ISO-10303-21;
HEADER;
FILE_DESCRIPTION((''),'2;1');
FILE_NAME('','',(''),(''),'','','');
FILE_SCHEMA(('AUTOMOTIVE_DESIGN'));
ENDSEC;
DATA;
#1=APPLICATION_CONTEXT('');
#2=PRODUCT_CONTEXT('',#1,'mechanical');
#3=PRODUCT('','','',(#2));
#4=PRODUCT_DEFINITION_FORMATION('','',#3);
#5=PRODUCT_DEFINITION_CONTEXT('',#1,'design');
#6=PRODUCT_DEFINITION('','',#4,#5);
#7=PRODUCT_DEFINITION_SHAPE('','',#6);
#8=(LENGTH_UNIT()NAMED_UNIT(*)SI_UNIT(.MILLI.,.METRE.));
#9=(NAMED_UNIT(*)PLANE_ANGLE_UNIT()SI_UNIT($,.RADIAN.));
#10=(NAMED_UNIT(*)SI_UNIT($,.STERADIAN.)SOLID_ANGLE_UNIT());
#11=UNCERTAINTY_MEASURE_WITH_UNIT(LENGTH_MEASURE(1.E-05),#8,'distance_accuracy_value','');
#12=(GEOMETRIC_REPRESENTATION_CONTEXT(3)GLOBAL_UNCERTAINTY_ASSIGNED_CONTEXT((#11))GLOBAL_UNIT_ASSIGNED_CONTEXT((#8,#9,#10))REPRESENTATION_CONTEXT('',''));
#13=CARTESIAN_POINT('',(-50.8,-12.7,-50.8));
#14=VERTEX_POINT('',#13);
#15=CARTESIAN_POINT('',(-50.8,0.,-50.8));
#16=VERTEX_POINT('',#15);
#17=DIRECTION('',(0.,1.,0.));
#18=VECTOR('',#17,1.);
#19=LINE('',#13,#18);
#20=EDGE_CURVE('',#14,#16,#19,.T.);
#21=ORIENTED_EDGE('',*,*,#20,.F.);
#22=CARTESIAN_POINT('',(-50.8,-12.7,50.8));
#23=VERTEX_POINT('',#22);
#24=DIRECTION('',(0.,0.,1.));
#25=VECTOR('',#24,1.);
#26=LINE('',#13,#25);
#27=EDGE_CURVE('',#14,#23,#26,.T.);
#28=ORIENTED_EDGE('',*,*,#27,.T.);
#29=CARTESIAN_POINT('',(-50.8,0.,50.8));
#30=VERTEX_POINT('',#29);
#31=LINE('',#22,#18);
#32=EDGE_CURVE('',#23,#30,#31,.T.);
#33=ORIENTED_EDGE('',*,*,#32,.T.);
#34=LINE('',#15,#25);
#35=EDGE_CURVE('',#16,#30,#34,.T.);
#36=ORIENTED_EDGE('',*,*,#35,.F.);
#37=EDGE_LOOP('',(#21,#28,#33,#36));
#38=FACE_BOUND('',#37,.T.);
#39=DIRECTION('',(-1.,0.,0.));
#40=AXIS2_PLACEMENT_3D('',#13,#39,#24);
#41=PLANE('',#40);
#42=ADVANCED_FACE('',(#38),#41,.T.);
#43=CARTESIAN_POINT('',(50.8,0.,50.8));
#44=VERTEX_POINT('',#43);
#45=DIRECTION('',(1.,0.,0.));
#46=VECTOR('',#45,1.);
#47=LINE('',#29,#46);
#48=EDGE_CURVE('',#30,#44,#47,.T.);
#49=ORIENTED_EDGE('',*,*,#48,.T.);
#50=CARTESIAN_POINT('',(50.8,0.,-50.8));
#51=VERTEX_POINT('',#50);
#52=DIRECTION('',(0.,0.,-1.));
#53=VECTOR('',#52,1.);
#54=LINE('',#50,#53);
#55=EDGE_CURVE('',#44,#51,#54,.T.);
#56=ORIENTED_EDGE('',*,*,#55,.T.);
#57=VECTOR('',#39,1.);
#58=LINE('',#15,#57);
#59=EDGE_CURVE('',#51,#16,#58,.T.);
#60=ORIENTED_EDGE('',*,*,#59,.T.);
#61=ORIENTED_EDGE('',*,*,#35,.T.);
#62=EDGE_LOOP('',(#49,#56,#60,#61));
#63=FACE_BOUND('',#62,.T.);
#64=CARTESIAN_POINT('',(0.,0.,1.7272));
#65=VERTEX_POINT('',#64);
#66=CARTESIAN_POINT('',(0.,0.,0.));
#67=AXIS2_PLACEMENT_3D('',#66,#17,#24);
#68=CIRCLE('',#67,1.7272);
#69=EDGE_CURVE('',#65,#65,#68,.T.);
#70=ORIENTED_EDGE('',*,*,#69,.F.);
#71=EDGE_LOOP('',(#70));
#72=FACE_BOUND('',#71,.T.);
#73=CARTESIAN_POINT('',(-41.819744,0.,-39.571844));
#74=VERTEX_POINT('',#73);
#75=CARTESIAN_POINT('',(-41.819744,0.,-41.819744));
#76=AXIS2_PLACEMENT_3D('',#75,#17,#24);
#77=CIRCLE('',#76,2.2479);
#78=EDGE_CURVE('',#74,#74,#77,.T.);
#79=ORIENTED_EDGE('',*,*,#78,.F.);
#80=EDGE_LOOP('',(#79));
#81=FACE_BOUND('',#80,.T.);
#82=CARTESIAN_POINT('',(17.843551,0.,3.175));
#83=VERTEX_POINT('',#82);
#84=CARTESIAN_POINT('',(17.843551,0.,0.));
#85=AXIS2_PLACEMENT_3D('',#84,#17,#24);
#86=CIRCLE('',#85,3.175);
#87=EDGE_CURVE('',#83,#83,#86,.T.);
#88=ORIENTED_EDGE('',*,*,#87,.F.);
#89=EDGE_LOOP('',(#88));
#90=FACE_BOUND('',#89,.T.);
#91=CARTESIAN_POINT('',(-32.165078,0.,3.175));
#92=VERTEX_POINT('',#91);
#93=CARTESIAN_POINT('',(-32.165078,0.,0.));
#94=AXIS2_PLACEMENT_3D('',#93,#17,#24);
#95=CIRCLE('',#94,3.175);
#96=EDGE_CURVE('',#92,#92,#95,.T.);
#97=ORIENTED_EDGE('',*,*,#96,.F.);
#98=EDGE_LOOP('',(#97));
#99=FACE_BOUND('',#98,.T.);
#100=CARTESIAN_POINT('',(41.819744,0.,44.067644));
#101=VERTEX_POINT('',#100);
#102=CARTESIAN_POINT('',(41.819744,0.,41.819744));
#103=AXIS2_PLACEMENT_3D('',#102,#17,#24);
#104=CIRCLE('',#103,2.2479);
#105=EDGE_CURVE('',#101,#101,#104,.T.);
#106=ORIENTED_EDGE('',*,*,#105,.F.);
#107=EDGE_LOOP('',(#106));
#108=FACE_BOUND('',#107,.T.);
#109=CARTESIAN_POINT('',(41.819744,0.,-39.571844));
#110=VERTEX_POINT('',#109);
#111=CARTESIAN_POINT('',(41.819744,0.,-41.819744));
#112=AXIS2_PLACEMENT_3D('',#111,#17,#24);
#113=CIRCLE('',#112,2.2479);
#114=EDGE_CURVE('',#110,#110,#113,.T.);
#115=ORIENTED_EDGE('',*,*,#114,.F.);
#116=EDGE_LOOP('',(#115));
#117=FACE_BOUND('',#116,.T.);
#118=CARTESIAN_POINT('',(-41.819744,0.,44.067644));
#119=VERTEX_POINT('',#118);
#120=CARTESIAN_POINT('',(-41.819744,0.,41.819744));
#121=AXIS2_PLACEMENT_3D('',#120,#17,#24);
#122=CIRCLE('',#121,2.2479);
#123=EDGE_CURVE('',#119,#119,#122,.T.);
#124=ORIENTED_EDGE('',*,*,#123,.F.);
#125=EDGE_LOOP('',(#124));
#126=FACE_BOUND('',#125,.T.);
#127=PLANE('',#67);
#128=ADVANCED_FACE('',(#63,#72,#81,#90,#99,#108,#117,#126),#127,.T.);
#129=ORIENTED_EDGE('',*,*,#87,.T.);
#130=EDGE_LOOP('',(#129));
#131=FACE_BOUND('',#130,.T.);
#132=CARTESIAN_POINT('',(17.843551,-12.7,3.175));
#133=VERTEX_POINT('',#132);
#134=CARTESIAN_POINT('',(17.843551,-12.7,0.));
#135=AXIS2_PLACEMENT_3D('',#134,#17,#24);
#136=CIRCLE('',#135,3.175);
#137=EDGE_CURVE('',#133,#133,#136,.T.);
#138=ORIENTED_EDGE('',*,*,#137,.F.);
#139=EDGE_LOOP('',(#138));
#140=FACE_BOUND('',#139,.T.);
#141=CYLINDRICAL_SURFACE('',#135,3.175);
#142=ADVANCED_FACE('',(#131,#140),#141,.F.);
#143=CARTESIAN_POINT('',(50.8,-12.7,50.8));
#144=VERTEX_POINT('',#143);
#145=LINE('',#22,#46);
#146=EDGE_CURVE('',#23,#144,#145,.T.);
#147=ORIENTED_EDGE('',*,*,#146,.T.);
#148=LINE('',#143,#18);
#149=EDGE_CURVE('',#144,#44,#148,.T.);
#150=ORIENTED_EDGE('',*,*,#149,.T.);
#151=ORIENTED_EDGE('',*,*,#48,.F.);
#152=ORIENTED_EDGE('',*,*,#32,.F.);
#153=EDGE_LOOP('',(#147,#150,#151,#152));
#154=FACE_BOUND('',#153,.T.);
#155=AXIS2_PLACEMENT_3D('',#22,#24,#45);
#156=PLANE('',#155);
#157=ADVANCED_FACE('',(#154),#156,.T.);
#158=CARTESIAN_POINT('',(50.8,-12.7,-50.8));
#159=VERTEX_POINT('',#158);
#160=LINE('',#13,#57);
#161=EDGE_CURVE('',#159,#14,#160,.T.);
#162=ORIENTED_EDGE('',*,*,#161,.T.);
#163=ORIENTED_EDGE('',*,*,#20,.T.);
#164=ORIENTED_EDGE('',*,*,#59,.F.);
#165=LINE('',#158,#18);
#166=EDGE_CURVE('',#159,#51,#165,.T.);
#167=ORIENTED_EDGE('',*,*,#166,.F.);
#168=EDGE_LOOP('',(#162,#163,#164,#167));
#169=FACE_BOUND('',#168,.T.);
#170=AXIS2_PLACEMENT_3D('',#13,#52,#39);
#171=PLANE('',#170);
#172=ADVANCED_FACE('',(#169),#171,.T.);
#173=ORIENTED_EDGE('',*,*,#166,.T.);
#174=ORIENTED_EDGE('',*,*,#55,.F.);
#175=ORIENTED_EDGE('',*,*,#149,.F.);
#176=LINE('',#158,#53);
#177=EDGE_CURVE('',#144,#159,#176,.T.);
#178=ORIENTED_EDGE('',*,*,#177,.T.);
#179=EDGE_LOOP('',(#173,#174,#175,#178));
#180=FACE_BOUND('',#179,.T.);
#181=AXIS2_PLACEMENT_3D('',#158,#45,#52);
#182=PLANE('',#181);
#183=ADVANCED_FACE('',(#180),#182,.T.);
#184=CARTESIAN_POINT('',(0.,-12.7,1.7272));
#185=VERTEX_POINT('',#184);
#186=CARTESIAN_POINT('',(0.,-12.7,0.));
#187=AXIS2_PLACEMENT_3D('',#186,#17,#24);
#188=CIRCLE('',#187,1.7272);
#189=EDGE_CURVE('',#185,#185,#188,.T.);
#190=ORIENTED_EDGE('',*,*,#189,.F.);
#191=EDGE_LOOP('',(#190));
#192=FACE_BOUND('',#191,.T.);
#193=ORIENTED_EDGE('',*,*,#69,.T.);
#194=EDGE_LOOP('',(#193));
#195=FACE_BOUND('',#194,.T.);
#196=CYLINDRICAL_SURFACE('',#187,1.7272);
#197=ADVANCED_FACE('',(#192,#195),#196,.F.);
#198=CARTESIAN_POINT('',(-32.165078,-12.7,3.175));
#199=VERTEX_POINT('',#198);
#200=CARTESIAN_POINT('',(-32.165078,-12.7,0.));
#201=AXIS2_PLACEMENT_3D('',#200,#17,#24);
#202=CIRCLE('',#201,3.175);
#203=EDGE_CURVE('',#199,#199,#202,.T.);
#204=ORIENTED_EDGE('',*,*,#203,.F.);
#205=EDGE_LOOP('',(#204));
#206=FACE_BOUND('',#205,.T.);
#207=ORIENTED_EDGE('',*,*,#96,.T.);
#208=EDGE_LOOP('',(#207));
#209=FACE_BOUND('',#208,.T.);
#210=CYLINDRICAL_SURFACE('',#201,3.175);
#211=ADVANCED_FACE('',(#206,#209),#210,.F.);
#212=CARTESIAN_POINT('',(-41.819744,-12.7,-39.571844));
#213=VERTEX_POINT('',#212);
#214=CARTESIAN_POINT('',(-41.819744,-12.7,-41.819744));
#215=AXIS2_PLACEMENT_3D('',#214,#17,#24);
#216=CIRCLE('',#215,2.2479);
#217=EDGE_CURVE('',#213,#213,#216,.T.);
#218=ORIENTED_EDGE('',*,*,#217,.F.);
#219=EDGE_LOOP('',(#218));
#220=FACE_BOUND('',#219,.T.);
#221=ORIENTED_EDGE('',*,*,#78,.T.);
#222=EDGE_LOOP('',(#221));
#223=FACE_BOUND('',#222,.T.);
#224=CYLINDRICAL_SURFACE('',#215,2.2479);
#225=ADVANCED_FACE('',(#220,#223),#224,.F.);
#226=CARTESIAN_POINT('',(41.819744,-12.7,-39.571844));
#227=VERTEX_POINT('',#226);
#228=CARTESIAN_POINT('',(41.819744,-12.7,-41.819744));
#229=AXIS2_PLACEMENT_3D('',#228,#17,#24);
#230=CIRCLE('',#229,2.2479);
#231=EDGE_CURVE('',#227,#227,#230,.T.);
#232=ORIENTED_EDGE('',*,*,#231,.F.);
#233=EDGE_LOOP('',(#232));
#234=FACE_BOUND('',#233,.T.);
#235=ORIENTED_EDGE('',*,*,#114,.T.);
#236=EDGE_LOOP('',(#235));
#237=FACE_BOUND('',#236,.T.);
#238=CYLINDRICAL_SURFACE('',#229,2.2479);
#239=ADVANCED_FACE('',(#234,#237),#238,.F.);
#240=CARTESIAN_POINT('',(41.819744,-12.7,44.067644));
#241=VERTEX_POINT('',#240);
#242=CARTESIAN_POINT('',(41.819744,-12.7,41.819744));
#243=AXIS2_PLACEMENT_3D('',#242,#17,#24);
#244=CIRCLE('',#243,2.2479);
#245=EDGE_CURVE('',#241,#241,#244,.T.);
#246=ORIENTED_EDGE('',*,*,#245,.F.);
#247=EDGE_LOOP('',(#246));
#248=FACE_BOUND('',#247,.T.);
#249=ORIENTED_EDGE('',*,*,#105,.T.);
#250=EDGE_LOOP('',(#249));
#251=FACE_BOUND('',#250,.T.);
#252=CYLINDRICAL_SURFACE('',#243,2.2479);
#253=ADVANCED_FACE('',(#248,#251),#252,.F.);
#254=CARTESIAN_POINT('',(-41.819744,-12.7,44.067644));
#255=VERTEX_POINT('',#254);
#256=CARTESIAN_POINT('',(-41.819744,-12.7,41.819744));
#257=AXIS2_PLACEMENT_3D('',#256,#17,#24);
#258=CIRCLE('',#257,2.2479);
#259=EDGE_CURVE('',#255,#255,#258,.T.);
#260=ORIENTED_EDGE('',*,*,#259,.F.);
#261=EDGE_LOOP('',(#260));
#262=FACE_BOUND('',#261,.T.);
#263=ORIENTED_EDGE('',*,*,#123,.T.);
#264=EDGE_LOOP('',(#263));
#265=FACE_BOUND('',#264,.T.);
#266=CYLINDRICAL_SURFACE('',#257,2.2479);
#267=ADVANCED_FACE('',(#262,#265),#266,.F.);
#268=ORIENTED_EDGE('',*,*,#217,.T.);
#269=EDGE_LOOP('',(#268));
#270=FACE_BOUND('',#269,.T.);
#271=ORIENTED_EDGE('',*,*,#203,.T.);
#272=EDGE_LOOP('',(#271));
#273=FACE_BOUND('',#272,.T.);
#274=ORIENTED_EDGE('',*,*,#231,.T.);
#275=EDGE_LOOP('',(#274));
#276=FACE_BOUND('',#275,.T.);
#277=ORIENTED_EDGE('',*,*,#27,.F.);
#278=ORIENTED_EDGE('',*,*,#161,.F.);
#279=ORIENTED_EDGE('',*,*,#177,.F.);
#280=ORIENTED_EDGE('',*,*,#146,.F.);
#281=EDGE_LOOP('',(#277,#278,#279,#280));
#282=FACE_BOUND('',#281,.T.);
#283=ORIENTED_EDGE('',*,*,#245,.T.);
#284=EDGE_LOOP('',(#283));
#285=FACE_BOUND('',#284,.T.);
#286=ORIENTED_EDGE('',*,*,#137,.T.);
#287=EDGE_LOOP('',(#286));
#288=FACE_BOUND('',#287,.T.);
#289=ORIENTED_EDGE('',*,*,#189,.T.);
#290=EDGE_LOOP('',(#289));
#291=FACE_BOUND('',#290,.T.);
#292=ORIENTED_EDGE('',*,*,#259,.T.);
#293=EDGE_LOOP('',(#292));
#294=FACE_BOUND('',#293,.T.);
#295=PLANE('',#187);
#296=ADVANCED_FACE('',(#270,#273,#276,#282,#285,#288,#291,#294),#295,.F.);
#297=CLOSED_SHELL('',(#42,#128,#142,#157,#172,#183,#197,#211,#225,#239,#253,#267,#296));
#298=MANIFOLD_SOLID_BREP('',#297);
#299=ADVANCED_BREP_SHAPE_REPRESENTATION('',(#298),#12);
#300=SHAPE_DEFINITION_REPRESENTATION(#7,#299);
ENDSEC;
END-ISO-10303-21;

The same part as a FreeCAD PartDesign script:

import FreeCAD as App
import Part
import Sketcher
Q = App.Units.Quantity


def add_polygon(sketch, points):
    """Adds a closed chain of lines whose ends are joined by coincident constraints."""
    first, n = sketch.GeometryCount, len(points)
    for a, b in zip(points, points[1:] + points[:1]):
        sketch.addGeometry(Part.LineSegment(App.Vector(*a, 0), App.Vector(*b, 0)), False)
    for i in range(n):
        sketch.addConstraint(Sketcher.Constraint("Coincident", first + i, 2, first + (i + 1) % n, 1))

doc = App.newDocument("Part")
body = doc.addObject("PartDesign::Body", "Body")

sketch1 = body.newObject("Sketcher::SketchObject", "Sketch")
sketch1.AttachmentSupport = (doc.getObject("XZ_Plane"), [""])
sketch1.MapMode = "FlatFace"
add_polygon(sketch1, [(-51, -51), (-51, 51), (51, 51), (51, -51)])
sketch1.addConstraint([
    Sketcher.Constraint("Vertical", 0),
    Sketcher.Constraint("Horizontal", 1),
    Sketcher.Constraint("Vertical", 2),
    Sketcher.Constraint("Horizontal", 3),
    Sketcher.Constraint("Symmetric", 0, 2, 2, 2, -1, 1),
    Sketcher.Constraint("Equal", 3, 0),
    Sketcher.Constraint("DistanceX", 1, 1, 1, 2, Q("4 in")),
])
pad1 = body.newObject("PartDesign::Pad", "Pad")
pad1.Profile = sketch1
pad1.Length = Q("0.5 in")

sketch2 = body.newObject("Sketcher::SketchObject", "Sketch001")
sketch2.AttachmentSupport = (doc.getObject("XZ_Plane"), [""])
sketch2.MapMode = "FlatFace"
sketch2.addGeometry([
    Part.Circle(App.Vector(17.8, 0, 0), App.Vector(0, 0, 1), 3.2),
    Part.Circle(App.Vector(-32.2, 0, 0), App.Vector(0, 0, 1), 3.2),
    Part.Circle(App.Vector(-41.8, -41.8, 0), App.Vector(0, 0, 1), 2.2),
    Part.Circle(App.Vector(41.8, -41.8, 0), App.Vector(0, 0, 1), 2.2),
    Part.Circle(App.Vector(41.8, 41.8, 0), App.Vector(0, 0, 1), 2.2),
    Part.Circle(App.Vector(-41.8, 41.8, 0), App.Vector(0, 0, 1), 2.2),
    Part.Circle(App.Vector(0, 0, 0), App.Vector(0, 0, 1), 1.7),
], False)
sketch2.addConstraint([
    Sketcher.Constraint("Coincident", 6, 3, -1, 1),
    Sketcher.Constraint("Equal", 0, 1),
    Sketcher.Constraint("Equal", 2, 3),
    Sketcher.Constraint("Equal", 3, 4),
    Sketcher.Constraint("Equal", 4, 5),
    Sketcher.Constraint("Symmetric", 2, 3, 4, 3, -1, 1),
    Sketcher.Constraint("Symmetric", 3, 3, 5, 3, -1, 1),
    Sketcher.Constraint("Symmetric", 2, 3, 3, 3, -2),
    Sketcher.Constraint("PointOnObject", 0, 3, -1),
    Sketcher.Constraint("PointOnObject", 1, 3, -1),
    Sketcher.Constraint("Diameter", 0, Q("0.25 in")),
    Sketcher.Constraint("Diameter", 2, Q("0.177 in")),
    Sketcher.Constraint("Diameter", 6, Q("0.136 in")),
    Sketcher.Constraint("DistanceX", -1, 1, 0, 3, 17.843551),
    Sketcher.Constraint("DistanceX", 1, 3, 0, 3, 50.008629),
    Sketcher.Constraint("DistanceX", 1, 3, 3, 3, 73.984822),
    Sketcher.Constraint("DistanceY", 2, 3, -1, 1, 41.819744),
])
pocket1 = body.newObject("PartDesign::Pocket", "Pocket")
pocket1.Profile = sketch2
pocket1.Type = "ThroughAll"
pocket1.Reversed = True

doc.recompute()
